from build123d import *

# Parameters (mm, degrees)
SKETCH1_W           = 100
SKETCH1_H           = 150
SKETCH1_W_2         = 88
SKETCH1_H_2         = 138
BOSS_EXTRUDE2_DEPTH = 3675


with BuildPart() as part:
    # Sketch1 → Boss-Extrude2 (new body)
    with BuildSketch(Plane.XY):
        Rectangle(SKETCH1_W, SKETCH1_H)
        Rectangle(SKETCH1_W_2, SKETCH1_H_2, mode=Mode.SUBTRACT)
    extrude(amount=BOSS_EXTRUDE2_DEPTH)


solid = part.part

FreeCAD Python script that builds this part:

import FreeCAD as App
import Part
import Sketcher


def add_polygon(sketch, points):
    """Adds a closed chain of lines whose ends are joined by coincident constraints."""
    first, n = sketch.GeometryCount, len(points)
    for a, b in zip(points, points[1:] + points[:1]):
        sketch.addGeometry(Part.LineSegment(App.Vector(*a, 0), App.Vector(*b, 0)), False)
    for i in range(n):
        sketch.addConstraint(Sketcher.Constraint("Coincident", first + i, 2, first + (i + 1) % n, 1))

doc = App.newDocument("Part")
params = doc.addObject("Spreadsheet::Sheet", "Params")
for row, (alias, value) in enumerate([
    ("sketch1_width", "100 mm"),
    ("sketch1_width2", "88 mm"),
    ("sketch1_height", "150 mm"),
    ("sketch1_height2", "138 mm"),
    ("pad1_length", "3675 mm"),
], start=1):
    params.set(f"A{row}", alias)
    params.set(f"B{row}", "=" + value)
    params.setAlias(f"B{row}", alias)

body = doc.addObject("PartDesign::Body", "Body")

sketch1 = body.newObject("Sketcher::SketchObject", "Sketch")
sketch1.AttachmentSupport = (doc.getObject("XY_Plane"), [""])
sketch1.MapMode = "FlatFace"
add_polygon(sketch1, [(-50, 75), (-50, -75), (50, -75), (50, 75)])
add_polygon(sketch1, [(44, -69), (-44, -69), (-44, 69), (44, 69)])
sketch1.addConstraint(Sketcher.Constraint("Vertical", 0))
sketch1.addConstraint(Sketcher.Constraint("Horizontal", 1))
sketch1.addConstraint(Sketcher.Constraint("Vertical", 2))
sketch1.addConstraint(Sketcher.Constraint("Horizontal", 3))
sketch1.addConstraint(Sketcher.Constraint("Horizontal", 4))
sketch1.addConstraint(Sketcher.Constraint("Vertical", 5))
sketch1.addConstraint(Sketcher.Constraint("Horizontal", 6))
sketch1.addConstraint(Sketcher.Constraint("Vertical", 7))
sketch1.addConstraint(Sketcher.Constraint("Symmetric", 0, 2, 2, 2, -1, 1))
sketch1.addConstraint(Sketcher.Constraint("Symmetric", 4, 2, 6, 2, -1, 1))
sketch1.addConstraint(Sketcher.Constraint("DistanceX", 1, 1, 1, 2, 100.0))
sketch1.addConstraint(Sketcher.Constraint("DistanceX", 4, 2, 4, 1, 88.0))
sketch1.addConstraint(Sketcher.Constraint("DistanceY", 0, 2, 0, 1, 150.0))
sketch1.addConstraint(Sketcher.Constraint("DistanceY", 5, 1, 5, 2, 138.0))
sketch1.setExpression("Constraints[18]", "Params.sketch1_width")
sketch1.setExpression("Constraints[19]", "Params.sketch1_width2")
sketch1.setExpression("Constraints[20]", "Params.sketch1_height")
sketch1.setExpression("Constraints[21]", "Params.sketch1_height2")
pad1 = body.newObject("PartDesign::Pad", "Pad")
pad1.Profile = sketch1
pad1.setExpression("Length", "Params.pad1_length")

doc.recompute()
